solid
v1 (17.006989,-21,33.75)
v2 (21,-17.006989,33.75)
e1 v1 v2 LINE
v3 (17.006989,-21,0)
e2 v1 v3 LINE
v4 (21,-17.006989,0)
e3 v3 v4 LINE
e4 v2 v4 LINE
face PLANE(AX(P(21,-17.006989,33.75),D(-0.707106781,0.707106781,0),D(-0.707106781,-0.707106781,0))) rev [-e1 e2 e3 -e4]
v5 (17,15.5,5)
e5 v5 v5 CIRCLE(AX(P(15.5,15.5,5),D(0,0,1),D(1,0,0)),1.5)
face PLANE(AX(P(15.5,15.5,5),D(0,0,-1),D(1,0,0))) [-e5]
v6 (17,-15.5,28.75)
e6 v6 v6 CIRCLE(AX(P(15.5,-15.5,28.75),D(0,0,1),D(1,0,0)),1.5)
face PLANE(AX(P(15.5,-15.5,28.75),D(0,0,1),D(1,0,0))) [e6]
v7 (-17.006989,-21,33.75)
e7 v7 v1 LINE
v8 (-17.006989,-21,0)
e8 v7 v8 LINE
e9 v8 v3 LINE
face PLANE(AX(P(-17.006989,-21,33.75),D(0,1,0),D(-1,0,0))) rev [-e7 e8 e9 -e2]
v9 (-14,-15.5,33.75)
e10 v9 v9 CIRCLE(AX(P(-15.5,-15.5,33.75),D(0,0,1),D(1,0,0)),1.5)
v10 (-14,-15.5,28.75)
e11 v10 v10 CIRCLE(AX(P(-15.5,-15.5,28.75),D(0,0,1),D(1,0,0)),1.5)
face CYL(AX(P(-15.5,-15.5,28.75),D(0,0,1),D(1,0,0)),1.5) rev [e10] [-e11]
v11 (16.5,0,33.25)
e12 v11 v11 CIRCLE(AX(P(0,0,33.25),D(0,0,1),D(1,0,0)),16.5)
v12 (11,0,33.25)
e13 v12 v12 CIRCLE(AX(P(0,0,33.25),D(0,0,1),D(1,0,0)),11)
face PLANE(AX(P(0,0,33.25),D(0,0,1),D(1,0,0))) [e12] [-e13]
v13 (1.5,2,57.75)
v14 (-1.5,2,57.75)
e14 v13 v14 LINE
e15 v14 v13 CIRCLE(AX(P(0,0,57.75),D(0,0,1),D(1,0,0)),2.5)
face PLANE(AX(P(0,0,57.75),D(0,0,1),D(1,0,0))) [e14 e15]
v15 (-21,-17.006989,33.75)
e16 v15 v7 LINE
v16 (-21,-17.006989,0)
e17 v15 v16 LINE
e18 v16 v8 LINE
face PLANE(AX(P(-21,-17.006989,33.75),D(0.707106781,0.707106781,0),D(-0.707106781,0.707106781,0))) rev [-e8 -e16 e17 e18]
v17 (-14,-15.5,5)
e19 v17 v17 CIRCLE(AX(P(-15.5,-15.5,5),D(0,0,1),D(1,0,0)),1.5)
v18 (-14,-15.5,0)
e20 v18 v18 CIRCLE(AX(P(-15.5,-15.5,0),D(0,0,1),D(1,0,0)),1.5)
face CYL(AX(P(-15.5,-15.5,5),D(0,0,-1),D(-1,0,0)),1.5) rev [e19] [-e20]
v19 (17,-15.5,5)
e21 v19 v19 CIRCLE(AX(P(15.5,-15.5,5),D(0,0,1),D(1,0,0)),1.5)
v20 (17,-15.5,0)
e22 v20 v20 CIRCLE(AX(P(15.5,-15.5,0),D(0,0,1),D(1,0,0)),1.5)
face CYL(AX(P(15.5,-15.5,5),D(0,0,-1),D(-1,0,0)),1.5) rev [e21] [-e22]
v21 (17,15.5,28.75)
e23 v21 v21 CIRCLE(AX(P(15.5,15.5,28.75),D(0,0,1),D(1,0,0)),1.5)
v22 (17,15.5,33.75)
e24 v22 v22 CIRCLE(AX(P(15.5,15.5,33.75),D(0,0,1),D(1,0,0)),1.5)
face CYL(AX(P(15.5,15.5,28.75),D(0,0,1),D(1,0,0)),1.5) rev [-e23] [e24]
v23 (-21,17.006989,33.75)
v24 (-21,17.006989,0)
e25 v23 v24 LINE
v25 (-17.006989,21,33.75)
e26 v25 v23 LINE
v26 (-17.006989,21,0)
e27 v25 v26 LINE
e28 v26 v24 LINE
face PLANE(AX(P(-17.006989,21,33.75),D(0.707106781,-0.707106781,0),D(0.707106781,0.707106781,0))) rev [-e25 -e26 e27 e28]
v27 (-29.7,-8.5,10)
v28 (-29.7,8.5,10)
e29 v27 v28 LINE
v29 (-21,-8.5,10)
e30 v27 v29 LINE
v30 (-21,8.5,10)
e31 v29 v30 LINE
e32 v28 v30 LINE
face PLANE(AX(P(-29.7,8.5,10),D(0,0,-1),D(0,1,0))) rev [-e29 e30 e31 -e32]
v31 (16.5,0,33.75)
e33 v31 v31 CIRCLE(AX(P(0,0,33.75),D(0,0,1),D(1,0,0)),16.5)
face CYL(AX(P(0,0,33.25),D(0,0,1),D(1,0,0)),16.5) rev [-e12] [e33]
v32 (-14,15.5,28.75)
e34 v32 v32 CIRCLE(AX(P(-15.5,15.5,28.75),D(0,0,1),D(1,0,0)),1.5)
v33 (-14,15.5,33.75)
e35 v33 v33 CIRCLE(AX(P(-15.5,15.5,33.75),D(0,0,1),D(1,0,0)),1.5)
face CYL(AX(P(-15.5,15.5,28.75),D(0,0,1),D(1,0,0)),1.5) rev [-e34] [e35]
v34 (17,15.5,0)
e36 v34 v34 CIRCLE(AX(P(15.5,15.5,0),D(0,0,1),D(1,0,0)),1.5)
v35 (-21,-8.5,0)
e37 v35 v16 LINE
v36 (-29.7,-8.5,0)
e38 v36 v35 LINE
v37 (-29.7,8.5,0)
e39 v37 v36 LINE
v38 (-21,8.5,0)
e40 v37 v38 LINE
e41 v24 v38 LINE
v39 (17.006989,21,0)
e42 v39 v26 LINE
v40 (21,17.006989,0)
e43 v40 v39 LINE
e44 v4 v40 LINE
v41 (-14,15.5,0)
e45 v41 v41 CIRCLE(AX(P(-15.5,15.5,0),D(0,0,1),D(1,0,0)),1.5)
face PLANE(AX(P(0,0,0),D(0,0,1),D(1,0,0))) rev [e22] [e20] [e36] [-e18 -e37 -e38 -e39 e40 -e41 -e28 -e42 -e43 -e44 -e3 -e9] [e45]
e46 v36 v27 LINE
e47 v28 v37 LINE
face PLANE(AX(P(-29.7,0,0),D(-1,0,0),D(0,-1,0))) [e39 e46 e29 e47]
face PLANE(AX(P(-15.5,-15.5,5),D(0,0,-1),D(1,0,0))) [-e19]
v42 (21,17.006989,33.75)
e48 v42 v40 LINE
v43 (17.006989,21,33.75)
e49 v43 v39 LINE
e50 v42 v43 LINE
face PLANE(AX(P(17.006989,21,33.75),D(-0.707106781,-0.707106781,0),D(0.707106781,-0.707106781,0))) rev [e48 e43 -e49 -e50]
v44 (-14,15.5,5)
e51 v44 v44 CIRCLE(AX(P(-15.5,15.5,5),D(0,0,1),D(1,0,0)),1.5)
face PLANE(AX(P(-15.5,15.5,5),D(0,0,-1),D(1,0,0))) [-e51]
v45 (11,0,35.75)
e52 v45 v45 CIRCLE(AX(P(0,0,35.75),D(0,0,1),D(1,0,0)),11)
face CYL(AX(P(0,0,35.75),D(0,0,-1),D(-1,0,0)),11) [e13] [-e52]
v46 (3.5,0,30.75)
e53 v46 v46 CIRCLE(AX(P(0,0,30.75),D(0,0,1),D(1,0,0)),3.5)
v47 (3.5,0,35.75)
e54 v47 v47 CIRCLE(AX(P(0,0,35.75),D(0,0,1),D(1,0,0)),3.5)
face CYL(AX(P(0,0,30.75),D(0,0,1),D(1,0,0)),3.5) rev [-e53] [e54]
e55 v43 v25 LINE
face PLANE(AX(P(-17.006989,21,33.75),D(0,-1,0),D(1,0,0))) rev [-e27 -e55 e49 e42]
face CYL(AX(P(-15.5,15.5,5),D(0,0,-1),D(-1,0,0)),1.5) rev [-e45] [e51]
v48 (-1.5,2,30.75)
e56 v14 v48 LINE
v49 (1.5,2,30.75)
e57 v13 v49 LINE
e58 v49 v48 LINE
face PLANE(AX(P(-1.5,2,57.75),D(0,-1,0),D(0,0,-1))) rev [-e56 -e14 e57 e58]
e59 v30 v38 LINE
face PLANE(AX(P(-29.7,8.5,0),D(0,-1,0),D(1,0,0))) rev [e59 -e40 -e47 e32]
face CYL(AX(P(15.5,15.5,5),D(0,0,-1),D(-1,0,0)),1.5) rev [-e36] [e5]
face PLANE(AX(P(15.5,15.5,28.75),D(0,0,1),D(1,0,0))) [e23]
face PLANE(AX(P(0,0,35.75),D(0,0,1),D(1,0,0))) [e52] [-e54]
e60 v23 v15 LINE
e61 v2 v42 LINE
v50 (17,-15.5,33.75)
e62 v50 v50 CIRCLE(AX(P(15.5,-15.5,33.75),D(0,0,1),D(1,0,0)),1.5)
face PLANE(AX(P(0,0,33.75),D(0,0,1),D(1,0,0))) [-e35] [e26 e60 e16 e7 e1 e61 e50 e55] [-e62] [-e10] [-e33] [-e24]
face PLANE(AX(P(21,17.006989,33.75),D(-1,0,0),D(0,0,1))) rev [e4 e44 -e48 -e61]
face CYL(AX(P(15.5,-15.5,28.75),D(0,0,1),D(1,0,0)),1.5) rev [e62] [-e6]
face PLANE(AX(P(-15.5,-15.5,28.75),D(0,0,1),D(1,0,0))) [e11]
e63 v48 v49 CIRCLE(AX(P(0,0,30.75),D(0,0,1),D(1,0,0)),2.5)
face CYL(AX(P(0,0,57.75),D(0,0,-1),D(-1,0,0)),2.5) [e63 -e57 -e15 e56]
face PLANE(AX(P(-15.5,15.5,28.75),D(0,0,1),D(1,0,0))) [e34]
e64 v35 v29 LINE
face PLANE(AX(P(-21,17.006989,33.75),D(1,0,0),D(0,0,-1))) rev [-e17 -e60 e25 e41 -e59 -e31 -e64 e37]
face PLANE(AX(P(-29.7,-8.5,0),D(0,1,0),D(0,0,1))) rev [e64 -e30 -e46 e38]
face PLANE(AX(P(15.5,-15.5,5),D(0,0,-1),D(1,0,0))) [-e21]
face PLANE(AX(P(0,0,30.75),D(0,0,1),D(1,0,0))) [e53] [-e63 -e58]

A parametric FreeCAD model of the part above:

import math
import FreeCAD as App
import Part
import Sketcher
from FreeCAD import Vector
Q = App.Units.Quantity

doc = App.newDocument("Part")
body = doc.addObject("PartDesign::Body", "Body")

# Sketch on XY plane
sketch1 = body.newObject("Sketcher::SketchObject", "Sketch")
sketch1.AttachmentSupport = (doc.getObject("XY_Plane"), [""])
sketch1.MapMode = "FlatFace"
sketch1.addGeometry([
    Part.LineSegment(Vector(-17.006989, 21, 0), Vector(-21, 17.006989, 0)),  # 0
    Part.LineSegment(Vector(-21, 17.006989, 0), Vector(-21, -17.006989, 0)),  # 1
    Part.LineSegment(Vector(-21, -17.006989, 0), Vector(-17.006989, -21, 0)),  # 2
    Part.LineSegment(Vector(-17.006989, -21, 0), Vector(17.006989, -21, 0)),  # 3
    Part.LineSegment(Vector(17.006989, -21, 0), Vector(21, -17.006989, 0)),  # 4
    Part.LineSegment(Vector(21, -17.006989, 0), Vector(21, 17.006989, 0)),  # 5
    Part.LineSegment(Vector(21, 17.006989, 0), Vector(17.006989, 21, 0)),  # 6
    Part.LineSegment(Vector(17.006989, 21, 0), Vector(-17.006989, 21, 0)),  # 7
], False)
sketch1.addConstraint([
    Sketcher.Constraint("Coincident", 0, 2, 1, 1),
    Sketcher.Constraint("Coincident", 1, 2, 2, 1),
    Sketcher.Constraint("Coincident", 2, 2, 3, 1),
    Sketcher.Constraint("Coincident", 3, 2, 4, 1),
    Sketcher.Constraint("Coincident", 4, 2, 5, 1),
    Sketcher.Constraint("Coincident", 5, 2, 6, 1),
    Sketcher.Constraint("Coincident", 6, 2, 7, 1),
    Sketcher.Constraint("Coincident", 7, 2, 0, 1),
    Sketcher.Constraint("Vertical", 1),
    Sketcher.Constraint("Horizontal", 3),
    Sketcher.Constraint("Vertical", 5),
    Sketcher.Constraint("Horizontal", 7),
    Sketcher.Constraint("Symmetric", 0, 2, 4, 2, -1, 1),
    Sketcher.Constraint("Symmetric", 2, 2, 6, 2, -1, 1),
    Sketcher.Constraint("Perpendicular", 0, 2),
    Sketcher.Constraint("Perpendicular", 2, 4),
    Sketcher.Constraint("Perpendicular", 4, 6),
    Sketcher.Constraint("Horizontal", 1, 2, 4, 2),
    Sketcher.Constraint("Vertical", 3, 2, 6, 2),
    Sketcher.Constraint("Equal", 7, 1),
    Sketcher.Constraint("DistanceX", 0, 2, -1, 1, Q("21 mm")),
    Sketcher.Constraint("DistanceX", 3, 1, 3, 2, Q("34.013979 mm")),
])
pad1 = body.newObject("PartDesign::Pad", "Pad")
pad1.Profile = sketch1
pad1.Length = 33.75

# Sketch on XY plane
sketch2 = body.newObject("Sketcher::SketchObject", "Sketch001")
sketch2.AttachmentSupport = (doc.getObject("XY_Plane"), [""])
sketch2.MapMode = "FlatFace"
sketch2.AttachmentOffset = App.Placement(Vector(0, 0, 33.75), App.Rotation())
sketch2.addGeometry(Part.Circle(Vector(0, 0, 0), Vector(0, 0, 1), 16.5), False)
sketch2.addConstraint([
    Sketcher.Constraint("Coincident", 0, 3, -1, 1),
    Sketcher.Constraint("Diameter", 0, Q("33 mm")),
])
pocket1 = body.newObject("PartDesign::Pocket", "Pocket")
pocket1.Profile = sketch2
pocket1.Length = 0.5

# Sketch on XY plane
sketch3 = body.newObject("Sketcher::SketchObject", "Sketch002")
sketch3.AttachmentSupport = (doc.getObject("XY_Plane"), [""])
sketch3.MapMode = "FlatFace"
sketch3.AttachmentOffset = App.Placement(Vector(0, 0, 33.25), App.Rotation())
sketch3.addGeometry(Part.Circle(Vector(0, 0, 0), Vector(0, 0, 1), 11), False)
sketch3.addConstraint([
    Sketcher.Constraint("Coincident", 0, 3, -1, 1),
    Sketcher.Constraint("Diameter", 0, Q("22 mm")),
])
pad2 = body.newObject("PartDesign::Pad", "Pad001")
pad2.Profile = sketch3
pad2.Length = 2.5

# Sketch on XY plane
sketch4 = body.newObject("Sketcher::SketchObject", "Sketch003")
sketch4.AttachmentSupport = (doc.getObject("XY_Plane"), [""])
sketch4.MapMode = "FlatFace"
sketch4.AttachmentOffset = App.Placement(Vector(0, 0, 35.75), App.Rotation())
sketch4.addGeometry(Part.Circle(Vector(0, 0, 0), Vector(0, 0, 1), 3.5), False)
sketch4.addConstraint([
    Sketcher.Constraint("Coincident", 0, 3, -1, 1),
    Sketcher.Constraint("Diameter", 0, Q("7 mm")),
])
pocket2 = body.newObject("PartDesign::Pocket", "Pocket001")
pocket2.Profile = sketch4
pocket2.Length = 5

# Sketch on XY plane
sketch5 = body.newObject("Sketcher::SketchObject", "Sketch004")
sketch5.AttachmentSupport = (doc.getObject("XY_Plane"), [""])
sketch5.MapMode = "FlatFace"
sketch5.AttachmentOffset = App.Placement(Vector(0, 0, 30.75), App.Rotation())
sketch5.addGeometry([
    Part.LineSegment(Vector(1.5, 2, 0), Vector(-1.5, 2, 0)),
    Part.ArcOfCircle(Part.Circle(Vector(0, 0, 0), Vector(0, 0, 1), 2.5), math.radians(126.869898), math.radians(413.130102)),
], False)
sketch5.addConstraint([
    Sketcher.Constraint("Coincident", 0, 1, 1, 2),
    Sketcher.Constraint("Coincident", 1, 1, 0, 2),
    Sketcher.Constraint("Horizontal", 0),
    Sketcher.Constraint("Coincident", 1, 3, -1, 1),
    Sketcher.Constraint("Radius", 1, Q("2.5 mm")),
    Sketcher.Constraint("DistanceX", 0, 2, 0, 1, Q("3 mm")),
])
pad3 = body.newObject("PartDesign::Pad", "Pad002")
pad3.Profile = sketch5
pad3.Length = 27

# Sketch on XY plane
sketch6 = body.newObject("Sketcher::SketchObject", "Sketch005")
sketch6.AttachmentSupport = (doc.getObject("XY_Plane"), [""])
sketch6.MapMode = "FlatFace"
sketch6.AttachmentOffset = App.Placement(Vector(0, 0, 33.75), App.Rotation())
sketch6.addGeometry([
    Part.Circle(Vector(-15.5, 15.5, 0), Vector(0, 0, 1), 1.5),
    Part.Circle(Vector(15.5, 15.5, 0), Vector(0, 0, 1), 1.5),
    Part.Circle(Vector(15.5, -15.5, 0), Vector(0, 0, 1), 1.5),
    Part.Circle(Vector(-15.5, -15.5, 0), Vector(0, 0, 1), 1.5),
], False)
sketch6.addConstraint([
    Sketcher.Constraint("Equal", 0, 1),
    Sketcher.Constraint("Equal", 1, 2),
    Sketcher.Constraint("Equal", 2, 3),
    Sketcher.Constraint("Symmetric", 0, 3, 2, 3, -1, 1),
    Sketcher.Constraint("Symmetric", 1, 3, 3, 3, -1, 1),
    Sketcher.Constraint("Symmetric", 0, 3, 1, 3, -2),
    Sketcher.Constraint("Diameter", 0, Q("3 mm")),
    Sketcher.Constraint("DistanceX", 0, 3, 1, 3, Q("31 mm")),
    Sketcher.Constraint("DistanceY", 2, 3, 1, 3, Q("31 mm")),
])
pocket3 = body.newObject("PartDesign::Pocket", "Pocket002")
pocket3.Profile = sketch6
pocket3.Length = 5
doc.recompute()

datumplane = body.newObject("PartDesign::Plane", "DatumPlane")
datumplane.AttachmentSupport = (doc.getObject("XY_Plane"), [""])
datumplane.MapMode = "FlatFace"
datumplane.AttachmentOffset = App.Placement(Vector(0, 0, 16.875), App.Rotation())
mirrored = body.newObject("PartDesign::Mirrored", "Mirrored")
mirrored.Originals = [pocket3]
mirrored.MirrorPlane = (datumplane, [""])
body.Tip = mirrored

# Sketch on YZ plane
sketch7 = body.newObject("Sketcher::SketchObject", "Sketch006")
sketch7.AttachmentSupport = (doc.getObject("YZ_Plane"), [""])
sketch7.MapMode = "FlatFace"
sketch7.AttachmentOffset = App.Placement(Vector(0, 0, -21), App.Rotation())
sketch7.addGeometry([
    Part.LineSegment(Vector(8.5, 0, 0), Vector(-8.5, 0, 0)),
    Part.LineSegment(Vector(-8.5, 0, 0), Vector(-8.5, 10, 0)),
    Part.LineSegment(Vector(-8.5, 10, 0), Vector(8.5, 10, 0)),
    Part.LineSegment(Vector(8.5, 10, 0), Vector(8.5, 0, 0)),
], False)
sketch7.addConstraint([
    Sketcher.Constraint("Coincident", 0, 2, 1, 1),
    Sketcher.Constraint("Coincident", 1, 2, 2, 1),
    Sketcher.Constraint("Coincident", 2, 2, 3, 1),
    Sketcher.Constraint("Coincident", 3, 2, 0, 1),
    Sketcher.Constraint("Horizontal", 0),
    Sketcher.Constraint("Vertical", 1),
    Sketcher.Constraint("Horizontal", 2),
    Sketcher.Constraint("Vertical", 3),
    Sketcher.Constraint("Symmetric", 0, 2, 3, 2, -1, 1),
    Sketcher.Constraint("DistanceX", 0, 2, 0, 1, Q("17 mm")),
    Sketcher.Constraint("DistanceY", 1, 1, 1, 2, Q("10 mm")),
])
pad4 = body.newObject("PartDesign::Pad", "Pad003")
pad4.Profile = sketch7
pad4.Length = 8.7
pad4.Reversed = True

doc.recompute()
